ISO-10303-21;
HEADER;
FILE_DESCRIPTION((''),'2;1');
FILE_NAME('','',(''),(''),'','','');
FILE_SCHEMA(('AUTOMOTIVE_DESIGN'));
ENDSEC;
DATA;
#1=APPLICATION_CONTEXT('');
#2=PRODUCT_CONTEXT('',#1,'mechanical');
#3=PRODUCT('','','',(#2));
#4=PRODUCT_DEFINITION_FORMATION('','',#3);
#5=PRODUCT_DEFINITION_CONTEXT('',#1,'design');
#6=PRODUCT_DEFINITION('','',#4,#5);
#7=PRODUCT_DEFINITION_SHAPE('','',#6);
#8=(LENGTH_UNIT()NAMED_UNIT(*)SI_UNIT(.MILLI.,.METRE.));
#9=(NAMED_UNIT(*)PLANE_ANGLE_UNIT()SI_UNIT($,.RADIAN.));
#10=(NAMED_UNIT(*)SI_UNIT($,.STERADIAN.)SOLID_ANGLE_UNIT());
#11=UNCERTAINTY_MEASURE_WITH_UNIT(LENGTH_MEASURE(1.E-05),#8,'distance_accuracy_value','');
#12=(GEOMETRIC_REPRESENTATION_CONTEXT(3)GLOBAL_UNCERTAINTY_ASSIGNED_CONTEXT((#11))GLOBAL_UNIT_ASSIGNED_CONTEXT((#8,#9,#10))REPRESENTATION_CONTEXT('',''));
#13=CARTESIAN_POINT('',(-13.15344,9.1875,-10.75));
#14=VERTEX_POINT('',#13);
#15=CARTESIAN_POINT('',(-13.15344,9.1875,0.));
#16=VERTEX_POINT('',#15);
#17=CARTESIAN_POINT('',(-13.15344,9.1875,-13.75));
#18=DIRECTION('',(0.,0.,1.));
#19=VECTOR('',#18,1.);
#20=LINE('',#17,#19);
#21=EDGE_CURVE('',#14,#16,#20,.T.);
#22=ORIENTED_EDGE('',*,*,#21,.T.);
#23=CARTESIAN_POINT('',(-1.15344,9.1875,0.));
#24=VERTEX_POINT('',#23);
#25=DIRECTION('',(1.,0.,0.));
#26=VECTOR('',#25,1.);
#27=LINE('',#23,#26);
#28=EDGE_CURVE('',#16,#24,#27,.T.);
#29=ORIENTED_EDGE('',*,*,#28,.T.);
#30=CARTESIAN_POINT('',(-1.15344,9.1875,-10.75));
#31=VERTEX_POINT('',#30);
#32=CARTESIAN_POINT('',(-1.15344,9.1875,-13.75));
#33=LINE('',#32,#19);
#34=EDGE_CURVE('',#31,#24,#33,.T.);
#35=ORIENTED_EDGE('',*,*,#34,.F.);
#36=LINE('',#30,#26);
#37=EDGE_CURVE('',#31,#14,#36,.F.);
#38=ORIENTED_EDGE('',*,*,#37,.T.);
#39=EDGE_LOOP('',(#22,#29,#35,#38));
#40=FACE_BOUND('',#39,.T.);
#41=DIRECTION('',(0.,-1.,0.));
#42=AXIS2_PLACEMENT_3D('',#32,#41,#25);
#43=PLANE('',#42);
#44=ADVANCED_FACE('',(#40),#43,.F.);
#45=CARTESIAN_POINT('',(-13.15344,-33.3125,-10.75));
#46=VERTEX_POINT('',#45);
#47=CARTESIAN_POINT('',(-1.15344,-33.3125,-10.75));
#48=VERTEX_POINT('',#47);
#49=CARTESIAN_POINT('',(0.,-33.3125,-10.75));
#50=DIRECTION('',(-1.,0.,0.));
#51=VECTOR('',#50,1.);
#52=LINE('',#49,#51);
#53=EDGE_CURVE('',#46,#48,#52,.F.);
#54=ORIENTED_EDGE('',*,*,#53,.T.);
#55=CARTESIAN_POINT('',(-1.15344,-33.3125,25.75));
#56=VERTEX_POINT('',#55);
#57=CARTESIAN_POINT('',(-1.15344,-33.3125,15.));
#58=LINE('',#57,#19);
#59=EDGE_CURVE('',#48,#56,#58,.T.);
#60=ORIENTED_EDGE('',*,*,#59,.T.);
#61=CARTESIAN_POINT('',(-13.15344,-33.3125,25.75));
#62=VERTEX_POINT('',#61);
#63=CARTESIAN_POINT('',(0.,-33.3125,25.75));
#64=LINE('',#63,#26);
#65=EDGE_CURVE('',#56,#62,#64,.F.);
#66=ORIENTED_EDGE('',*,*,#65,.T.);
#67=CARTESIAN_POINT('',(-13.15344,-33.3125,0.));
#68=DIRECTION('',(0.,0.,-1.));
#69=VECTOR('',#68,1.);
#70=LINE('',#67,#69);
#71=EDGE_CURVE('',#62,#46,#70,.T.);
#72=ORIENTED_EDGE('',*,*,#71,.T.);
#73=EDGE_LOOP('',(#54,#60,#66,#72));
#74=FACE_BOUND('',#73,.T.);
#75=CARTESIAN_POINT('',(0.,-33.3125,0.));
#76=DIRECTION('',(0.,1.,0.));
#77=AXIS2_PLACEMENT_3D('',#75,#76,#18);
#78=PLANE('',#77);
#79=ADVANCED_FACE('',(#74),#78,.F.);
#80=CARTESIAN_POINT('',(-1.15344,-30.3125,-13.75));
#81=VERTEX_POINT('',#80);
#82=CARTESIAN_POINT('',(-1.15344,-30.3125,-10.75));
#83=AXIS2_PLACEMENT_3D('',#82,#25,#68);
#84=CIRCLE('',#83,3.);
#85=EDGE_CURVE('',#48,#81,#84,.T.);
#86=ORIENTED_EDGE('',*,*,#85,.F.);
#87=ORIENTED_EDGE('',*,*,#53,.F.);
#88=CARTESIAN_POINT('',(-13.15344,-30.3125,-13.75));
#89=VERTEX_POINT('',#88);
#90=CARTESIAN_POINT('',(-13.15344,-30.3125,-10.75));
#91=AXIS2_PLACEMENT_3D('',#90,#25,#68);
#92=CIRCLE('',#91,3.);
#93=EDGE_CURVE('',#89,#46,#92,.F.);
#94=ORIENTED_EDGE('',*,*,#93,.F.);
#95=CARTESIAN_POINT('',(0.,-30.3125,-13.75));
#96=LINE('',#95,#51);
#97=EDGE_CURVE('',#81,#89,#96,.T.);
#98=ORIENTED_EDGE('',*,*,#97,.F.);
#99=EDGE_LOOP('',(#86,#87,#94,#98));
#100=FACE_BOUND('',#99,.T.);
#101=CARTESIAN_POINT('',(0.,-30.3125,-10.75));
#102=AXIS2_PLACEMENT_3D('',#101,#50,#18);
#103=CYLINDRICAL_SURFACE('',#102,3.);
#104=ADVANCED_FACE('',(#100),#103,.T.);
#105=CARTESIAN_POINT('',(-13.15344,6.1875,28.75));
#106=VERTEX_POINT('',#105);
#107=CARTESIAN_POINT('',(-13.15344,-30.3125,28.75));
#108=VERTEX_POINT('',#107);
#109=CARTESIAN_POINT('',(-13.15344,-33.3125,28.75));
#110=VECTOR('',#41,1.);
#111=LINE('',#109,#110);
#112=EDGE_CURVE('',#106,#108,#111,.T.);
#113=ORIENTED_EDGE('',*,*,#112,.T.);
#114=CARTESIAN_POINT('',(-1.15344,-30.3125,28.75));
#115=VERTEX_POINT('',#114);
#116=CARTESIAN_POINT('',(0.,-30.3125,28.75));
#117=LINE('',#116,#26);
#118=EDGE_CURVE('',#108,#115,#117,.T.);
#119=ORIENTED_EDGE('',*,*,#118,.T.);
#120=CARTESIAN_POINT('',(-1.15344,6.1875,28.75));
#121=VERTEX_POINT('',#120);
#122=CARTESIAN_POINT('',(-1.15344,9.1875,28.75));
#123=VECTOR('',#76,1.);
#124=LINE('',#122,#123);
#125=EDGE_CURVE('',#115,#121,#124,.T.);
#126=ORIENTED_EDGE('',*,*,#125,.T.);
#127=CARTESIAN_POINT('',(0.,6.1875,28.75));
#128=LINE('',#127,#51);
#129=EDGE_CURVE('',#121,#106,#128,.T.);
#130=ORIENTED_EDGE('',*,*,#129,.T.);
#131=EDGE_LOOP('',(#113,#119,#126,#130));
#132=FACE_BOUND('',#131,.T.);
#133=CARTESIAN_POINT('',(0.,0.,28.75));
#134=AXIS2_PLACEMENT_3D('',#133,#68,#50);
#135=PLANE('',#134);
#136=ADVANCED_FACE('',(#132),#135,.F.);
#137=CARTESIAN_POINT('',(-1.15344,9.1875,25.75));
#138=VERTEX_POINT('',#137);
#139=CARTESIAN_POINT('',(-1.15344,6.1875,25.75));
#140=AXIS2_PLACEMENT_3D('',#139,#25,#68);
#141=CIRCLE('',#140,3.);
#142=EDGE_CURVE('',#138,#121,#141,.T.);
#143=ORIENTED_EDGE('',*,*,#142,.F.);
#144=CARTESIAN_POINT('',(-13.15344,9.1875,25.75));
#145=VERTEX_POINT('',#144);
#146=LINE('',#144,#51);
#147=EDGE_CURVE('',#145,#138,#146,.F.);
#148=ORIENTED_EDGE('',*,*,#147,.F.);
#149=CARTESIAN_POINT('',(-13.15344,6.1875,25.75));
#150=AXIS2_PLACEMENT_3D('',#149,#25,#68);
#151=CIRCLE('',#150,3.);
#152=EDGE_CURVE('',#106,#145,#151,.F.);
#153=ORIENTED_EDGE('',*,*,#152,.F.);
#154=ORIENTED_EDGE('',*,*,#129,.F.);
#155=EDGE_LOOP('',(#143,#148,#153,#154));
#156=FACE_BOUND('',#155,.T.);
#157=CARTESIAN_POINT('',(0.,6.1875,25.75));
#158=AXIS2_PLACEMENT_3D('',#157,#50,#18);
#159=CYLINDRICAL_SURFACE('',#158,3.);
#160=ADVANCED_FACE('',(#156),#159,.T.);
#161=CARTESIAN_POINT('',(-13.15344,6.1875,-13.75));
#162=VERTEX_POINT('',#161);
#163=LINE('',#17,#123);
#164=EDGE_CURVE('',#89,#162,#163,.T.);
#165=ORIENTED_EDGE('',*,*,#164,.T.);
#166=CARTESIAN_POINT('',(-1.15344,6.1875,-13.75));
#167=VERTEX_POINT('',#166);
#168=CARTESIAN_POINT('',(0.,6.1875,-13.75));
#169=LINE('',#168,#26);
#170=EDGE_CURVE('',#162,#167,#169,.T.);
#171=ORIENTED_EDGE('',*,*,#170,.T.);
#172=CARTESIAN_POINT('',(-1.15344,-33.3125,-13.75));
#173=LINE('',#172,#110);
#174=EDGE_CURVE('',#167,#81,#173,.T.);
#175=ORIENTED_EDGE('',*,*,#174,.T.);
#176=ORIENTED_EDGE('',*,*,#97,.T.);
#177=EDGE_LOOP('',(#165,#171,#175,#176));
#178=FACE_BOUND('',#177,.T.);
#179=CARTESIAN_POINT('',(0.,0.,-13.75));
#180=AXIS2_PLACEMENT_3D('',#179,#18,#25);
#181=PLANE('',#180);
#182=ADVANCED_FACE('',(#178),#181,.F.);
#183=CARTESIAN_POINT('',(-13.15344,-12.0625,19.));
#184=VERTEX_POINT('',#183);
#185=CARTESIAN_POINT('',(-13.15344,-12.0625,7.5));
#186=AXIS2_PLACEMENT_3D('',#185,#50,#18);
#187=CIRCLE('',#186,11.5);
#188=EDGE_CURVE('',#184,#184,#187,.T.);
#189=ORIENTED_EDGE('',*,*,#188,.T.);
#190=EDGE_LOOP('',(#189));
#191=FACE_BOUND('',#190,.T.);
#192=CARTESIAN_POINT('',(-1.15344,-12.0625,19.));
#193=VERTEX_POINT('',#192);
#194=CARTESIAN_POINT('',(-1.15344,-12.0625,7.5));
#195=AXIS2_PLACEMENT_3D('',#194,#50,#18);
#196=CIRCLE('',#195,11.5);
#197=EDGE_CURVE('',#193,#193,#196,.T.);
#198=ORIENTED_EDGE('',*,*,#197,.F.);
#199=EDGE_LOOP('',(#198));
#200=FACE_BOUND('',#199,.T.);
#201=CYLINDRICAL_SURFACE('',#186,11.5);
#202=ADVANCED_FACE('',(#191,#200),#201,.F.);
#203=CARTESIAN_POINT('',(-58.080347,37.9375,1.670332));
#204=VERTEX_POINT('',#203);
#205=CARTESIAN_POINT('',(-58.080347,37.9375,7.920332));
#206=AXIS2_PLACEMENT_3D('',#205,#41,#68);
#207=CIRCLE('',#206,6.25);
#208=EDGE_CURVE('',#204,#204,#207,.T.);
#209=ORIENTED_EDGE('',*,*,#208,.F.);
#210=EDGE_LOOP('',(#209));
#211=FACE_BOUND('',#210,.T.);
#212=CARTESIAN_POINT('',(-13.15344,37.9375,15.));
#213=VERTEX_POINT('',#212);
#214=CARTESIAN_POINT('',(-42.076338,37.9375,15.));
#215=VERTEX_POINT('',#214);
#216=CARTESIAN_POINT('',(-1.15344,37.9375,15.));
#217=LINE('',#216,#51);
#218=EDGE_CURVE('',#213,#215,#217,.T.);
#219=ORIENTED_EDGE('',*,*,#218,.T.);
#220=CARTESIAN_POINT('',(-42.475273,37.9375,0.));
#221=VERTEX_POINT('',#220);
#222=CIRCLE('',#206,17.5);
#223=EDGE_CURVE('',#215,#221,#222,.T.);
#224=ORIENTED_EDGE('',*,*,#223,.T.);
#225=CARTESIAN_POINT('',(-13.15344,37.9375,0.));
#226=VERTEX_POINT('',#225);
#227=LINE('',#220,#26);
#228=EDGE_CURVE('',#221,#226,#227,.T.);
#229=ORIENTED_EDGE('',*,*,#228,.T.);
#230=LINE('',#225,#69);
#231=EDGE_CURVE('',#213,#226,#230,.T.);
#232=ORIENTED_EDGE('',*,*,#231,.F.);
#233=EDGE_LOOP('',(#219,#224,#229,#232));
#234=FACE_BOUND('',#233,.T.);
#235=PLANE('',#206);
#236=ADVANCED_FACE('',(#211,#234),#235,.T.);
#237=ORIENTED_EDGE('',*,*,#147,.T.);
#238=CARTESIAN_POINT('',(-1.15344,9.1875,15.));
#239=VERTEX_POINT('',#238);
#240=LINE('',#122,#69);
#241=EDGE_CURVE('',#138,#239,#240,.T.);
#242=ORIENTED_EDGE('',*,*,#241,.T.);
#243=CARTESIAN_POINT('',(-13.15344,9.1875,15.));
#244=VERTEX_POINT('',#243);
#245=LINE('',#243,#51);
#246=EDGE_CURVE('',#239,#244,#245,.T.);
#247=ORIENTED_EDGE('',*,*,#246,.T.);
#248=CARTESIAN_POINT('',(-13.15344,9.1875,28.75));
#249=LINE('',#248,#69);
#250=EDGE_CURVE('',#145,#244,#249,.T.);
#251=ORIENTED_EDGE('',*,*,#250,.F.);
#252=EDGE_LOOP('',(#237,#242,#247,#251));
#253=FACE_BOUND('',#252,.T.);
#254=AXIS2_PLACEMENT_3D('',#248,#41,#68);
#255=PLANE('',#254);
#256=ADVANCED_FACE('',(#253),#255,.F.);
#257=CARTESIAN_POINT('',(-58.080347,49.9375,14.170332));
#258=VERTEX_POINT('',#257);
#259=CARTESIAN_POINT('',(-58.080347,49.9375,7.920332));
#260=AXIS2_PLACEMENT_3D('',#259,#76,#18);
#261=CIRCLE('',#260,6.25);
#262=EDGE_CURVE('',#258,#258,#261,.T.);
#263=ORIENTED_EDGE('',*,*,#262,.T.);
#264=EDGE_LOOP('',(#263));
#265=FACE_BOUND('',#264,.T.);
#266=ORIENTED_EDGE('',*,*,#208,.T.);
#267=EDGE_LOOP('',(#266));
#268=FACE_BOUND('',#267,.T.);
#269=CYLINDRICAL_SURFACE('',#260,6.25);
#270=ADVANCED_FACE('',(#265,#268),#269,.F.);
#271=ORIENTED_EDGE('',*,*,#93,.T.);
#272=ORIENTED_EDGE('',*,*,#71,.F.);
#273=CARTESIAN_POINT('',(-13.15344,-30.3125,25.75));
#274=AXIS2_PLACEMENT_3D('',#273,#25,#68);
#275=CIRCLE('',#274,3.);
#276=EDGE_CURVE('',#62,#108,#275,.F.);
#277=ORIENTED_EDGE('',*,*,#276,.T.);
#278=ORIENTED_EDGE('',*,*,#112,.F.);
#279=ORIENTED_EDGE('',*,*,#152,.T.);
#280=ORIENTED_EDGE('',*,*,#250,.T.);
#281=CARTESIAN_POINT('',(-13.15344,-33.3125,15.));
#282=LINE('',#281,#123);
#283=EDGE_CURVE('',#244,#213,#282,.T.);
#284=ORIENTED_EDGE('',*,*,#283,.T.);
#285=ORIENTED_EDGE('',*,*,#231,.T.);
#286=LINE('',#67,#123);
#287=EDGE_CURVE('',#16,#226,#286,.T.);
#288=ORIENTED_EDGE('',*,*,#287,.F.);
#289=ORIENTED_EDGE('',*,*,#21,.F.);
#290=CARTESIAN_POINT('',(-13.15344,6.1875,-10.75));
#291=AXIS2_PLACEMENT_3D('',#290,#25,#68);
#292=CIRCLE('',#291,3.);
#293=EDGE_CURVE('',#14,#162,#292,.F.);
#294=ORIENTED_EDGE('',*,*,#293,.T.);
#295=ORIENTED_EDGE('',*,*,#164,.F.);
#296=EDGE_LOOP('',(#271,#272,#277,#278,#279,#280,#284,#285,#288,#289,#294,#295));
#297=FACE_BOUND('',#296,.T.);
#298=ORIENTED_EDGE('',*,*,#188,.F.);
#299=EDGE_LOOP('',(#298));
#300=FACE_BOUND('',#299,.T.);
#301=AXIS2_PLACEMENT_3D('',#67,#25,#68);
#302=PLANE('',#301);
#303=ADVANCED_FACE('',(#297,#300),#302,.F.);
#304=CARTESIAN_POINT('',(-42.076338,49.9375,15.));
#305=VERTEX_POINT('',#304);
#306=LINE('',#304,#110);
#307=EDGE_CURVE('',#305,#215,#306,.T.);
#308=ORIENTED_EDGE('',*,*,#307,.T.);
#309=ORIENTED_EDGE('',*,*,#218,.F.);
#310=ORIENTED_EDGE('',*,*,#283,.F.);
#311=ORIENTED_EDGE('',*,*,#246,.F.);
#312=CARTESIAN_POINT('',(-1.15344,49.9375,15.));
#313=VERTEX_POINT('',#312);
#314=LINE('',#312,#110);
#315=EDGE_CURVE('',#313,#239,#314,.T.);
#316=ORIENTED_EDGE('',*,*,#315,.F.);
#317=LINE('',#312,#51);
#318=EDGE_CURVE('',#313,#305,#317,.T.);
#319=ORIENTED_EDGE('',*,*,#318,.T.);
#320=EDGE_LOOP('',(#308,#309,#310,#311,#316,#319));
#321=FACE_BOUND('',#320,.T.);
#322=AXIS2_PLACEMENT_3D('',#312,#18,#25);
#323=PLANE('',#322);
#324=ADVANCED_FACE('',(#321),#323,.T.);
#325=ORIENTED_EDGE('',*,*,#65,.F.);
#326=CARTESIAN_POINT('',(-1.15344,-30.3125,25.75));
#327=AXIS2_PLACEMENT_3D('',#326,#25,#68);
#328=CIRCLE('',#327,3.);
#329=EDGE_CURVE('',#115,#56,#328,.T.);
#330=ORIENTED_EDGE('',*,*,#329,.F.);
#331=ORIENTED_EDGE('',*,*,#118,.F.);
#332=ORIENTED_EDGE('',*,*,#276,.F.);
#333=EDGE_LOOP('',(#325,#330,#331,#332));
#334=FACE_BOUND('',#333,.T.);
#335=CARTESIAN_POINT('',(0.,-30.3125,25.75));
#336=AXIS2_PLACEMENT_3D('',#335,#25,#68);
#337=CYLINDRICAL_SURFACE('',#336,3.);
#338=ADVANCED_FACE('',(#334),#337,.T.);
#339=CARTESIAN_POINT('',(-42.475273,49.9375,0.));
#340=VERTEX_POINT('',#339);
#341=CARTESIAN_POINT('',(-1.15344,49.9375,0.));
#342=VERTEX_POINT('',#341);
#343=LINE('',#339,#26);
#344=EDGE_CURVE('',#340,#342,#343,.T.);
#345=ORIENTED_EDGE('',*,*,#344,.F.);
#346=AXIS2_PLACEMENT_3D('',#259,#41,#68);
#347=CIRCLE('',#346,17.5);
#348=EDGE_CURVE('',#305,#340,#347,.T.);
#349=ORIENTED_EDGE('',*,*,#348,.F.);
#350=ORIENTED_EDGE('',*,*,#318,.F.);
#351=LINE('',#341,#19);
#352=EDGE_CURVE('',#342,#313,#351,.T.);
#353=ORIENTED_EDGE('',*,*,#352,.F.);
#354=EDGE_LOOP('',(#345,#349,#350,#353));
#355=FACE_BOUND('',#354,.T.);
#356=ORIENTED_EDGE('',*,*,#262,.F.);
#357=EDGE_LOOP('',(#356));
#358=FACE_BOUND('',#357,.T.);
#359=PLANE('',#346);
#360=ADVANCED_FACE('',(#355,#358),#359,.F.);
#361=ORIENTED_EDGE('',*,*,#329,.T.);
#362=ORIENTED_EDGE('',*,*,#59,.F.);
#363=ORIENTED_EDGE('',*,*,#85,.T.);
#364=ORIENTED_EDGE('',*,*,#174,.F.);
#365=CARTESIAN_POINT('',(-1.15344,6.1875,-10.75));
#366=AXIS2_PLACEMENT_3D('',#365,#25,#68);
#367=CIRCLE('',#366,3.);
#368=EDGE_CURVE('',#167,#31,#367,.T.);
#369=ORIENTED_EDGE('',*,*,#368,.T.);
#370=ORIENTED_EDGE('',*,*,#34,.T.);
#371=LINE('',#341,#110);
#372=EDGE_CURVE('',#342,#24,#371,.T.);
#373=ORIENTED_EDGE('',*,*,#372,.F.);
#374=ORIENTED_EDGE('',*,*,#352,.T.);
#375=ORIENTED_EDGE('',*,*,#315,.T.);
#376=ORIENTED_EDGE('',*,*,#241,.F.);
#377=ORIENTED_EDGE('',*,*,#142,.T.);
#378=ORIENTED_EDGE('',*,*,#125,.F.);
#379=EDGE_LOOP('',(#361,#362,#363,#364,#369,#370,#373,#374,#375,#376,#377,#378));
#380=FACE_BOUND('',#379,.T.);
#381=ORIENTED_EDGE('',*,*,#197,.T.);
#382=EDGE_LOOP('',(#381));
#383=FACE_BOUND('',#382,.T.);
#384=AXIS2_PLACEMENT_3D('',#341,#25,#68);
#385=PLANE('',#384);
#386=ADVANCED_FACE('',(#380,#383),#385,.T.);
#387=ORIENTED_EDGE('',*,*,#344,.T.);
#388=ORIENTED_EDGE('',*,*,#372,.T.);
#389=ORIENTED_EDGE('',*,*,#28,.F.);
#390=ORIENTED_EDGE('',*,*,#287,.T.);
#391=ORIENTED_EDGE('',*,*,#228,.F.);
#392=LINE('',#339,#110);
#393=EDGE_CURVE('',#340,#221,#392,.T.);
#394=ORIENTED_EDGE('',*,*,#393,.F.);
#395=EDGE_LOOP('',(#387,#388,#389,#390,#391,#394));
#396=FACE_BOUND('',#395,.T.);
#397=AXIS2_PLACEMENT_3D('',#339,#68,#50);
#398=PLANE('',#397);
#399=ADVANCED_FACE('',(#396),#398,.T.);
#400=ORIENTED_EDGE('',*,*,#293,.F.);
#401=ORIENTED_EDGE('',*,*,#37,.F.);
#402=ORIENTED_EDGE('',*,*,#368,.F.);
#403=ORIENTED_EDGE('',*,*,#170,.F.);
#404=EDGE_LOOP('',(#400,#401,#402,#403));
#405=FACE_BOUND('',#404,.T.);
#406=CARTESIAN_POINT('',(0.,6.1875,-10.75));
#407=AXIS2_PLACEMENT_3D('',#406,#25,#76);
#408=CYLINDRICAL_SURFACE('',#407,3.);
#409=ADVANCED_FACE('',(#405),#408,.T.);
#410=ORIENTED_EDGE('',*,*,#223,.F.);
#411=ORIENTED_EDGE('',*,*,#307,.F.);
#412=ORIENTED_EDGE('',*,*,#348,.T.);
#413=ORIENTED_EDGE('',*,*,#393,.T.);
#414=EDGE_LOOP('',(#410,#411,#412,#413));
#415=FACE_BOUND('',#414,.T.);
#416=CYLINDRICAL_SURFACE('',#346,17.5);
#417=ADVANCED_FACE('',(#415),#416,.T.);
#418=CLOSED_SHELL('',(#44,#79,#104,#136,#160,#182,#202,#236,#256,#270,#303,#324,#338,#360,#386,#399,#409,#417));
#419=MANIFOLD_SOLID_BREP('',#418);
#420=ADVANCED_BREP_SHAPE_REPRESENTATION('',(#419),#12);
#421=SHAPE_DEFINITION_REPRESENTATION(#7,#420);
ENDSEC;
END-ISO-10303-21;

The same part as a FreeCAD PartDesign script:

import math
import FreeCAD as App
import Part
import Sketcher


def edges_at(feature, points):
    """Names of the edges that pass closest to the given points."""
    edges = feature.Shape.Edges
    near = lambda p: min(range(len(edges)), key=lambda i: edges[i].distToShape(Part.Vertex(*p))[0])
    return sorted({f"Edge{near(p) + 1}" for p in points})


def add_polygon(sketch, points):
    """Adds a closed chain of lines whose ends are joined by coincident constraints."""
    first, n = sketch.GeometryCount, len(points)
    for a, b in zip(points, points[1:] + points[:1]):
        sketch.addGeometry(Part.LineSegment(App.Vector(*a, 0), App.Vector(*b, 0)), False)
    for i in range(n):
        sketch.addConstraint(Sketcher.Constraint("Coincident", first + i, 2, first + (i + 1) % n, 1))

doc = App.newDocument("Part")
body = doc.addObject("PartDesign::Body", "Body")

# Sketch on XZ plane
sketch1 = body.newObject("Sketcher::SketchObject", "Sketch")
sketch1.AttachmentSupport = (doc.getObject("XZ_Plane"), [""])
sketch1.MapMode = "FlatFace"
sketch1.AttachmentOffset = App.Placement(App.Vector(0, 0, -37.9375), App.Rotation())
sketch1.addGeometry([
    Part.LineSegment(App.Vector(-1, 15, 0), App.Vector(-42, 15, 0)),
    Part.ArcOfCircle(Part.Circle(App.Vector(-58, 8, 0), App.Vector(0, 0, 1), 18), math.radians(24), math.radians(333)),
    Part.LineSegment(App.Vector(-42, 0, 0), App.Vector(-1, 0, 0)),
    Part.LineSegment(App.Vector(-1, 0, 0), App.Vector(-1, 15, 0)),
], False)
sketch1.addConstraint([
    Sketcher.Constraint("Coincident", 0, 2, 1, 1),
    Sketcher.Constraint("Coincident", 1, 2, 2, 1),
    Sketcher.Constraint("Coincident", 2, 2, 3, 1),
    Sketcher.Constraint("Coincident", 3, 2, 0, 1),
    Sketcher.Constraint("Horizontal", 0),
    Sketcher.Constraint("Horizontal", 2),
    Sketcher.Constraint("Vertical", 3),
    Sketcher.Constraint("PointOnObject", 1, 2, -1),
    Sketcher.Constraint("Radius", 1, 17.5),
    Sketcher.Constraint("DistanceY", 3, 1, 3, 2, 15.0),
    Sketcher.Constraint("DistanceX", 0, 2, 0, 1, 40.922898),
    Sketcher.Constraint("DistanceX", 2, 1, 2, 2, 41.321832),
    Sketcher.Constraint("DistanceX", 0, 2, -1, 1, 42.076338),
])
pad1 = body.newObject("PartDesign::Pad", "Pad")
pad1.Profile = sketch1
pad1.Length = 12
pad1.Reversed = True

# Sketch on XZ plane
sketch2 = body.newObject("Sketcher::SketchObject", "Sketch001")
sketch2.AttachmentSupport = (doc.getObject("XZ_Plane"), [""])
sketch2.MapMode = "FlatFace"
sketch2.AttachmentOffset = App.Placement(App.Vector(0, 0, -37.9375), App.Rotation())
add_polygon(sketch2, [(-13, 15), (-13, 0), (-1, 0), (-1, 15)])  # lines 0-3
sketch2.addConstraint([
    Sketcher.Constraint("Vertical", 0),
    Sketcher.Constraint("Horizontal", 1),
    Sketcher.Constraint("Vertical", 2),
    Sketcher.Constraint("Horizontal", 3),
    Sketcher.Constraint("PointOnObject", 0, 2, -1),
    Sketcher.Constraint("DistanceX", 1, 1, 1, 2, 12.0),
    Sketcher.Constraint("DistanceY", 0, 2, 0, 1, 15.0),
    Sketcher.Constraint("DistanceX", 0, 2, -1, 1, 13.15344),
])
pad2 = body.newObject("PartDesign::Pad", "Pad001")
pad2.Profile = sketch2
pad2.Length = 71.25

# Sketch on XY plane
sketch3 = body.newObject("Sketcher::SketchObject", "Sketch002")
sketch3.AttachmentSupport = (doc.getObject("XY_Plane"), [""])
sketch3.MapMode = "FlatFace"
add_polygon(sketch3, [(-1, 9), (-1, -33), (-13, -33), (-13, 9)])  # lines 0-3
sketch3.addConstraint([
    Sketcher.Constraint("Vertical", 0),
    Sketcher.Constraint("Horizontal", 1),
    Sketcher.Constraint("Vertical", 2),
    Sketcher.Constraint("Horizontal", 3),
    Sketcher.Constraint("DistanceX", 1, 2, 1, 1, 12.0),
    Sketcher.Constraint("DistanceY", 0, 2, 0, 1, 42.5),
    Sketcher.Constraint("DistanceY", 0, 2, -1, 1, 33.3125),
    Sketcher.Constraint("DistanceX", 0, 2, -1, 1, 1.15344),
])
pad3 = body.newObject("PartDesign::Pad", "Pad002")
pad3.Profile = sketch3
pad3.Length = 13.75
pad3.Reversed = True

# Sketch on XY plane
sketch4 = body.newObject("Sketcher::SketchObject", "Sketch003")
sketch4.AttachmentSupport = (doc.getObject("XY_Plane"), [""])
sketch4.MapMode = "FlatFace"
sketch4.AttachmentOffset = App.Placement(App.Vector(0, 0, 15), App.Rotation())
add_polygon(sketch4, [(-13, 9), (-13, -33), (-1, -33), (-1, 9)])  # lines 0-3
sketch4.addConstraint([
    Sketcher.Constraint("Vertical", 0),
    Sketcher.Constraint("Horizontal", 1),
    Sketcher.Constraint("Vertical", 2),
    Sketcher.Constraint("Horizontal", 3),
    Sketcher.Constraint("DistanceX", 1, 1, 1, 2, 12.0),
    Sketcher.Constraint("DistanceY", 0, 2, 0, 1, 42.5),
    Sketcher.Constraint("DistanceY", 0, 2, -1, 1, 33.3125),
    Sketcher.Constraint("DistanceX", 0, 2, -1, 1, 13.15344),
])
pad4 = body.newObject("PartDesign::Pad", "Pad003")
pad4.Profile = sketch4
pad4.Length = 13.75

# Sketch on YZ plane
sketch5 = body.newObject("Sketcher::SketchObject", "Sketch004")
sketch5.AttachmentSupport = (doc.getObject("YZ_Plane"), [""])
sketch5.MapMode = "FlatFace"
sketch5.AttachmentOffset = App.Placement(App.Vector(0, 0, -13.15344), App.Rotation())
sketch5.addGeometry(Part.Circle(App.Vector(-12, 8, 0), App.Vector(0, 0, 1), 12), False)
sketch5.addConstraint([
    Sketcher.Constraint("Diameter", 0, 23.0),
    Sketcher.Constraint("DistanceY", -1, 1, 0, 3, 7.5),
    Sketcher.Constraint("DistanceX", 0, 3, -1, 1, 12.0625),
])
doc.recompute()
hole = body.newObject("PartDesign::Hole", "Hole")
hole.Profile = sketch5
hole.ThreadType = "None"
hole.Diameter = 23
hole.DepthType = "ThroughAll"
hole.Reversed = True

# Sketch on XZ plane
sketch6 = body.newObject("Sketcher::SketchObject", "Sketch005")
sketch6.AttachmentSupport = (doc.getObject("XZ_Plane"), [""])
sketch6.MapMode = "FlatFace"
sketch6.AttachmentOffset = App.Placement(App.Vector(0, 0, -49.9375), App.Rotation())
sketch6.addGeometry(Part.Circle(App.Vector(-58, 8, 0), App.Vector(0, 0, 1), 6), False)
sketch6.addConstraint([
    Sketcher.Constraint("Diameter", 0, 12.5),
    Sketcher.Constraint("DistanceY", -1, 1, 0, 3, 7.920332),
    Sketcher.Constraint("DistanceX", 0, 3, -1, 1, 58.080347),
])
doc.recompute()
hole2 = body.newObject("PartDesign::Hole", "Hole001")
hole2.Profile = sketch6
hole2.ThreadType = "None"
hole2.Diameter = 12.5
hole2.DepthType = "Dimension"
hole2.Depth = 83.25
hole2.DrillPoint = "Flat"
hole2.Reversed = True
doc.recompute()

fillet = body.newObject("PartDesign::Fillet", "Fillet")
fillet.Base = (hole2, edges_at(hole2, [
    (-7.153, -33.312, -13.75),
    (-7.153, 9.188, -13.75),
    (-7.153, -33.312, 28.75),
    (-7.153, 9.188, 28.75),
]))
fillet.Radius = 3

doc.recompute()
